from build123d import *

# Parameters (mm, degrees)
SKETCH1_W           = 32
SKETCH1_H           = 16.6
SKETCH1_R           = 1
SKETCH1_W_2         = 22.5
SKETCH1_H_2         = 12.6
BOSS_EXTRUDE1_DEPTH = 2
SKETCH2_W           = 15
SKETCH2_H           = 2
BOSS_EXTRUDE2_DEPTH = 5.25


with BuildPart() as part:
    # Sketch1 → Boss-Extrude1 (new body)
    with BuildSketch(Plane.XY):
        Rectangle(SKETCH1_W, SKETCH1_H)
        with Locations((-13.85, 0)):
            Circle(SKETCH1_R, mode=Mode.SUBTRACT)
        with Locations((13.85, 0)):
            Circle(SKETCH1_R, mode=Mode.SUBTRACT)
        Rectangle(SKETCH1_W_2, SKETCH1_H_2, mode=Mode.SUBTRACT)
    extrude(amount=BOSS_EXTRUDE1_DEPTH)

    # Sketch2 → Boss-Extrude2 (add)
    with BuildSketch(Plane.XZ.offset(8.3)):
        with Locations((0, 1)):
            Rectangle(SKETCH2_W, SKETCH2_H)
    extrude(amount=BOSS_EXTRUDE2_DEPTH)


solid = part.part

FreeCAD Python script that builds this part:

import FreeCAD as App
import Part
import Sketcher
from FreeCAD import Vector
Q = App.Units.Quantity

doc = App.newDocument("Part")
body = doc.addObject("PartDesign::Body", "Body")

sketch1 = body.newObject("Sketcher::SketchObject", "Sketch")
sketch1.AttachmentSupport = (doc.getObject("XY_Plane"), [""])
sketch1.MapMode = "FlatFace"
sketch1.addGeometry([
    Part.LineSegment(Vector(-16, 8.3, 0), Vector(-16, -8.3, 0)),
    Part.LineSegment(Vector(-16, -8.3, 0), Vector(16, -8.3, 0)),
    Part.LineSegment(Vector(16, -8.3, 0), Vector(16, 8.3, 0)),
    Part.LineSegment(Vector(16, 8.3, 0), Vector(-16, 8.3, 0)),
    Part.Circle(Vector(-13.85, 0, 0), Vector(0, 0, 1), 1),
    Part.LineSegment(Vector(11.25, -6.3, 0), Vector(-11.25, -6.3, 0)),
    Part.LineSegment(Vector(-11.25, -6.3, 0), Vector(-11.25, 6.3, 0)),
    Part.LineSegment(Vector(-11.25, 6.3, 0), Vector(11.25, 6.3, 0)),
    Part.LineSegment(Vector(11.25, 6.3, 0), Vector(11.25, -6.3, 0)),
    Part.Circle(Vector(13.85, 0, 0), Vector(0, 0, 1), 1),
], False)
sketch1.addConstraint([
    Sketcher.Constraint("Coincident", 0, 2, 1, 1),
    Sketcher.Constraint("Coincident", 1, 2, 2, 1),
    Sketcher.Constraint("Coincident", 2, 2, 3, 1),
    Sketcher.Constraint("Coincident", 3, 2, 0, 1),
    Sketcher.Constraint("Coincident", 5, 2, 6, 1),
    Sketcher.Constraint("Coincident", 6, 2, 7, 1),
    Sketcher.Constraint("Coincident", 7, 2, 8, 1),
    Sketcher.Constraint("Coincident", 8, 2, 5, 1),
    Sketcher.Constraint("Vertical", 0),
    Sketcher.Constraint("Horizontal", 1),
    Sketcher.Constraint("Vertical", 2),
    Sketcher.Constraint("Horizontal", 3),
    Sketcher.Constraint("Horizontal", 5),
    Sketcher.Constraint("Vertical", 6),
    Sketcher.Constraint("Horizontal", 7),
    Sketcher.Constraint("Vertical", 8),
    Sketcher.Constraint("Equal", 4, 9),
    Sketcher.Constraint("Symmetric", 4, 3, 9, 3, -1, 1),
    Sketcher.Constraint("Symmetric", 0, 2, 2, 2, -1, 1),
    Sketcher.Constraint("Symmetric", 5, 2, 7, 2, -1, 1),
    Sketcher.Constraint("PointOnObject", 4, 3, -1),
    Sketcher.Constraint("Diameter", 4, Q("2 mm")),
    Sketcher.Constraint("DistanceX", 1, 1, 1, 2, Q("32 mm")),
    Sketcher.Constraint("DistanceX", 5, 2, 5, 1, Q("22.5 mm")),
    Sketcher.Constraint("DistanceY", 0, 2, 0, 1, Q("16.6 mm")),
    Sketcher.Constraint("DistanceY", 6, 1, 6, 2, Q("12.6 mm")),
    Sketcher.Constraint("DistanceX", 4, 3, 9, 3, Q("27.7 mm")),
])
pad1 = body.newObject("PartDesign::Pad", "Pad")
pad1.Profile = sketch1
pad1.Length = 2

sketch2 = body.newObject("Sketcher::SketchObject", "Sketch001")
sketch2.AttachmentSupport = (doc.getObject("XZ_Plane"), [""])
sketch2.MapMode = "FlatFace"
sketch2.AttachmentOffset = App.Placement(Vector(0, 0, 8.3), App.Rotation())
sketch2.addGeometry([
    Part.LineSegment(Vector(-7.5, 2, 0), Vector(-7.5, 0, 0)),
    Part.LineSegment(Vector(-7.5, 0, 0), Vector(7.5, 0, 0)),
    Part.LineSegment(Vector(7.5, 0, 0), Vector(7.5, 2, 0)),
    Part.LineSegment(Vector(7.5, 2, 0), Vector(-7.5, 2, 0)),
], False)
sketch2.addConstraint([
    Sketcher.Constraint("Coincident", 0, 2, 1, 1),
    Sketcher.Constraint("Coincident", 1, 2, 2, 1),
    Sketcher.Constraint("Coincident", 2, 2, 3, 1),
    Sketcher.Constraint("Coincident", 3, 2, 0, 1),
    Sketcher.Constraint("Vertical", 0),
    Sketcher.Constraint("Horizontal", 1),
    Sketcher.Constraint("Vertical", 2),
    Sketcher.Constraint("Horizontal", 3),
    Sketcher.Constraint("Symmetric", 0, 2, 1, 2, -1, 1),
    Sketcher.Constraint("DistanceX", 1, 1, 1, 2, Q("15 mm")),
    Sketcher.Constraint("DistanceY", 0, 2, 0, 1, Q("2 mm")),
])
pad2 = body.newObject("PartDesign::Pad", "Pad001")
pad2.Profile = sketch2
pad2.Length = 5.25

doc.recompute()
